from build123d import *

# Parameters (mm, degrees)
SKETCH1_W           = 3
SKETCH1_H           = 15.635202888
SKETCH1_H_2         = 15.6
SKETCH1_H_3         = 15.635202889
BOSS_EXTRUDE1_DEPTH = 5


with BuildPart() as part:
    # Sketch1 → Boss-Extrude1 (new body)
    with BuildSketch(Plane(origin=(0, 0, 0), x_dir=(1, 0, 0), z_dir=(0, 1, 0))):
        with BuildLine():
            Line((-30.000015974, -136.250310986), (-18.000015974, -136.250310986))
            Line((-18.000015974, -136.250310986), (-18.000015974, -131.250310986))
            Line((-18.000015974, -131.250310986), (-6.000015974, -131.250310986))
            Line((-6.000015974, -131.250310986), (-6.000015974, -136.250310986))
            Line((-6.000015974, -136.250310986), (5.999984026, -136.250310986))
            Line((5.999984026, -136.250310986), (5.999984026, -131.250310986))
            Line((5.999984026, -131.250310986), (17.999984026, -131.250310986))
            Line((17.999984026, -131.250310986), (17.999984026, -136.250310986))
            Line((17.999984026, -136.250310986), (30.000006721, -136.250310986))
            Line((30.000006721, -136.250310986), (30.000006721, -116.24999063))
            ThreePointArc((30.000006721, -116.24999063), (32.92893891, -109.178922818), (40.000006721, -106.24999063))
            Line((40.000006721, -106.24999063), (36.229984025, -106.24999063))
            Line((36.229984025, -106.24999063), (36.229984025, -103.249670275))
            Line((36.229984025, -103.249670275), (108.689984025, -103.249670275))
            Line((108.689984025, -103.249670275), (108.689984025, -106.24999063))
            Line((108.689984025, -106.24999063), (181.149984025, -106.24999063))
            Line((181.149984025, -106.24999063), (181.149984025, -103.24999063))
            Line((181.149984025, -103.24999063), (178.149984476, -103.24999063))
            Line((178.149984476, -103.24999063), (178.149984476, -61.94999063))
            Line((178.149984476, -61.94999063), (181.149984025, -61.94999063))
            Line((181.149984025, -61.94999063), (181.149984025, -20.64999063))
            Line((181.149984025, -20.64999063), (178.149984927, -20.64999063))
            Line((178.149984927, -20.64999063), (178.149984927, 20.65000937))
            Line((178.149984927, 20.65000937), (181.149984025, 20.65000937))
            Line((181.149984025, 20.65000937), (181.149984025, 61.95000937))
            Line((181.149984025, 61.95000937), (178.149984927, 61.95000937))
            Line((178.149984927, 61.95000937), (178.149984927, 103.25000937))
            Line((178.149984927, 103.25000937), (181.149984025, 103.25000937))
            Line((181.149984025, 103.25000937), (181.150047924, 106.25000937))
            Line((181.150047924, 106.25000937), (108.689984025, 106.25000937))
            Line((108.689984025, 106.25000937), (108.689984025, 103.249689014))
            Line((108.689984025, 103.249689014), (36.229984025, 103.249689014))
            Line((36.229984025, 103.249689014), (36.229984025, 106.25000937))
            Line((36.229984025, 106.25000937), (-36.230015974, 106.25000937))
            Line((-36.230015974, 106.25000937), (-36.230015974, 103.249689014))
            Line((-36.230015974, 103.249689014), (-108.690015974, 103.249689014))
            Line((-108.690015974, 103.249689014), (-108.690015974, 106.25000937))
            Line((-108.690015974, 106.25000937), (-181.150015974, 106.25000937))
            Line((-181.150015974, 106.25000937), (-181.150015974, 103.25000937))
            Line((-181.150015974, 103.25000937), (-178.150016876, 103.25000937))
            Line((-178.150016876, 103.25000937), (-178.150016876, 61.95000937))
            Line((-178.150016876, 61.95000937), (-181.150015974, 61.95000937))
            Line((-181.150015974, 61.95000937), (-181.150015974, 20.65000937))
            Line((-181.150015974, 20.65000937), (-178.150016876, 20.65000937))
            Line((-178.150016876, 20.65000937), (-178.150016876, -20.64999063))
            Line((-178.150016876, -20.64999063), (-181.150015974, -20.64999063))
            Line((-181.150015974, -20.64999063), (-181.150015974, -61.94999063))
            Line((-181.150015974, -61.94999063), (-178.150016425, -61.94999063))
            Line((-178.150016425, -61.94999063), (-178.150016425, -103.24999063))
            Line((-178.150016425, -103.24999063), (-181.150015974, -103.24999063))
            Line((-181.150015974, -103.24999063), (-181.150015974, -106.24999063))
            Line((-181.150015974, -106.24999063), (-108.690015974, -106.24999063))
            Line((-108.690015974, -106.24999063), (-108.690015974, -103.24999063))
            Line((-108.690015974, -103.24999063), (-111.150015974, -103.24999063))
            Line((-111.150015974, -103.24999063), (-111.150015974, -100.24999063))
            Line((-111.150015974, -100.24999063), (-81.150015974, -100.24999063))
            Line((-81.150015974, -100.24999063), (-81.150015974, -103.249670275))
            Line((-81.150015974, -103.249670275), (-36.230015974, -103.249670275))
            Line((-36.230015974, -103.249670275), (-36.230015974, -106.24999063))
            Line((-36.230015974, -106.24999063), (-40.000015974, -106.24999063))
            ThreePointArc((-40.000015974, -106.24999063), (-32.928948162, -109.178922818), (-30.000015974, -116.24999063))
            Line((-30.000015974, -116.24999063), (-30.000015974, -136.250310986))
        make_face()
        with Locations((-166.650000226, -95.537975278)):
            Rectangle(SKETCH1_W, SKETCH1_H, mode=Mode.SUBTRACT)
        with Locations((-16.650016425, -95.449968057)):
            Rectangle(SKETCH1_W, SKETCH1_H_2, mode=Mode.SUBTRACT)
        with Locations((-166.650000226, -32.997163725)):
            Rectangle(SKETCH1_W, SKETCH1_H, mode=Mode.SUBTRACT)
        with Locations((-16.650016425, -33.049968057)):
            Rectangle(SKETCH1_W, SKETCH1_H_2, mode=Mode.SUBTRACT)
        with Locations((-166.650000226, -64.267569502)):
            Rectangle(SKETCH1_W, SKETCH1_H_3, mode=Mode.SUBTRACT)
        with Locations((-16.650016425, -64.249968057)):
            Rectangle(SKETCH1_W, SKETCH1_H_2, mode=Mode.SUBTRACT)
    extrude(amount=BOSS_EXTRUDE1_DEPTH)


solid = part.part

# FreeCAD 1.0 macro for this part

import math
import FreeCAD as App
import Part
import Sketcher
Q = App.Units.Quantity


def add_polygon(sketch, points):
    """Adds a closed chain of lines whose ends are joined by coincident constraints."""
    first, n = sketch.GeometryCount, len(points)
    for a, b in zip(points, points[1:] + points[:1]):
        sketch.addGeometry(Part.LineSegment(App.Vector(*a, 0), App.Vector(*b, 0)), False)
    for i in range(n):
        sketch.addConstraint(Sketcher.Constraint("Coincident", first + i, 2, first + (i + 1) % n, 1))

doc = App.newDocument("Part")
body = doc.addObject("PartDesign::Body", "Body")

sketch1 = doc.addObject("Sketcher::SketchObject", "Sketch")
body.addObject(sketch1)
sketch1.AttachmentSupport = (doc.XZ_Plane, [""])
sketch1.MapMode = "FlatFace"
sketch1.addGeometry(Part.LineSegment(App.Vector(-30, 136.3, 0), App.Vector(-18, 136.3, 0)), False)
sketch1.addGeometry(Part.LineSegment(App.Vector(-18, 136.3, 0), App.Vector(-18, 131.3, 0)), False)
sketch1.addGeometry(Part.LineSegment(App.Vector(-18, 131.3, 0), App.Vector(-6, 131.3, 0)), False)
sketch1.addGeometry(Part.LineSegment(App.Vector(-6, 131.3, 0), App.Vector(-6, 136.3, 0)), False)
sketch1.addGeometry(Part.LineSegment(App.Vector(-6, 136.3, 0), App.Vector(6, 136.3, 0)), False)
sketch1.addGeometry(Part.LineSegment(App.Vector(6, 136.3, 0), App.Vector(6, 131.3, 0)), False)
sketch1.addGeometry(Part.LineSegment(App.Vector(6, 131.3, 0), App.Vector(18, 131.3, 0)), False)
sketch1.addGeometry(Part.LineSegment(App.Vector(18, 131.3, 0), App.Vector(18, 136.3, 0)), False)
sketch1.addGeometry(Part.LineSegment(App.Vector(18, 136.3, 0), App.Vector(30, 136.3, 0)), False)
sketch1.addGeometry(Part.LineSegment(App.Vector(30, 136.3, 0), App.Vector(30, 116.2, 0)), False)
sketch1.addGeometry(Part.ArcOfCircle(Part.Circle(App.Vector(40, 116.2, 0), App.Vector(0, 0, 1), 10), math.radians(-180), math.radians(-90)), False)
sketch1.addGeometry(Part.LineSegment(App.Vector(40, 106.2, 0), App.Vector(36.2, 106.2, 0)), False)
sketch1.addGeometry(Part.LineSegment(App.Vector(36.2, 106.2, 0), App.Vector(36.2, 103.2, 0)), False)
sketch1.addGeometry(Part.LineSegment(App.Vector(36.2, 103.2, 0), App.Vector(108.7, 103.2, 0)), False)
sketch1.addGeometry(Part.LineSegment(App.Vector(108.7, 103.2, 0), App.Vector(108.7, 106.2, 0)), False)
sketch1.addGeometry(Part.LineSegment(App.Vector(108.7, 106.2, 0), App.Vector(181.1, 106.2, 0)), False)
sketch1.addGeometry(Part.LineSegment(App.Vector(181.1, 106.2, 0), App.Vector(181.1, 103.2, 0)), False)
sketch1.addGeometry(Part.LineSegment(App.Vector(181.1, 103.2, 0), App.Vector(178.1, 103.2, 0)), False)
sketch1.addGeometry(Part.LineSegment(App.Vector(178.1, 103.2, 0), App.Vector(178.1, 61.9, 0)), False)
sketch1.addGeometry(Part.LineSegment(App.Vector(178.1, 61.9, 0), App.Vector(181.1, 61.9, 0)), False)
sketch1.addGeometry(Part.LineSegment(App.Vector(181.1, 61.9, 0), App.Vector(181.1, 20.6, 0)), False)
sketch1.addGeometry(Part.LineSegment(App.Vector(181.1, 20.6, 0), App.Vector(178.1, 20.6, 0)), False)
sketch1.addGeometry(Part.LineSegment(App.Vector(178.1, 20.6, 0), App.Vector(178.1, -20.7, 0)), False)
sketch1.addGeometry(Part.LineSegment(App.Vector(178.1, -20.7, 0), App.Vector(181.1, -20.7, 0)), False)
sketch1.addGeometry(Part.LineSegment(App.Vector(181.1, -20.7, 0), App.Vector(181.1, -62, 0)), False)
sketch1.addGeometry(Part.LineSegment(App.Vector(181.1, -62, 0), App.Vector(178.1, -62, 0)), False)
sketch1.addGeometry(Part.LineSegment(App.Vector(178.1, -62, 0), App.Vector(178.1, -103.3, 0)), False)
sketch1.addGeometry(Part.LineSegment(App.Vector(178.1, -103.3, 0), App.Vector(181.1, -103.3, 0)), False)
sketch1.addGeometry(Part.LineSegment(App.Vector(181.1, -103.3, 0), App.Vector(181.2, -106.3, 0)), False)
sketch1.addGeometry(Part.LineSegment(App.Vector(181.2, -106.3, 0), App.Vector(108.7, -106.3, 0)), False)
sketch1.addGeometry(Part.LineSegment(App.Vector(108.7, -106.3, 0), App.Vector(108.7, -103.2, 0)), False)
sketch1.addGeometry(Part.LineSegment(App.Vector(108.7, -103.2, 0), App.Vector(36.2, -103.2, 0)), False)
sketch1.addGeometry(Part.LineSegment(App.Vector(36.2, -103.2, 0), App.Vector(36.2, -106.3, 0)), False)
sketch1.addGeometry(Part.LineSegment(App.Vector(36.2, -106.3, 0), App.Vector(-36.2, -106.3, 0)), False)
sketch1.addGeometry(Part.LineSegment(App.Vector(-36.2, -106.3, 0), App.Vector(-36.2, -103.2, 0)), False)
sketch1.addGeometry(Part.LineSegment(App.Vector(-36.2, -103.2, 0), App.Vector(-108.7, -103.2, 0)), False)
sketch1.addGeometry(Part.LineSegment(App.Vector(-108.7, -103.2, 0), App.Vector(-108.7, -106.3, 0)), False)
sketch1.addGeometry(Part.LineSegment(App.Vector(-108.7, -106.3, 0), App.Vector(-181.2, -106.3, 0)), False)
sketch1.addGeometry(Part.LineSegment(App.Vector(-181.2, -106.3, 0), App.Vector(-181.2, -103.3, 0)), False)
sketch1.addGeometry(Part.LineSegment(App.Vector(-181.2, -103.3, 0), App.Vector(-178.2, -103.3, 0)), False)
sketch1.addGeometry(Part.LineSegment(App.Vector(-178.2, -103.3, 0), App.Vector(-178.2, -62, 0)), False)
sketch1.addGeometry(Part.LineSegment(App.Vector(-178.2, -62, 0), App.Vector(-181.2, -62, 0)), False)
sketch1.addGeometry(Part.LineSegment(App.Vector(-181.2, -62, 0), App.Vector(-181.2, -20.7, 0)), False)
sketch1.addGeometry(Part.LineSegment(App.Vector(-181.2, -20.7, 0), App.Vector(-178.2, -20.7, 0)), False)
sketch1.addGeometry(Part.LineSegment(App.Vector(-178.2, -20.7, 0), App.Vector(-178.2, 20.6, 0)), False)
sketch1.addGeometry(Part.LineSegment(App.Vector(-178.2, 20.6, 0), App.Vector(-181.2, 20.6, 0)), False)
sketch1.addGeometry(Part.LineSegment(App.Vector(-181.2, 20.6, 0), App.Vector(-181.2, 61.9, 0)), False)
sketch1.addGeometry(Part.LineSegment(App.Vector(-181.2, 61.9, 0), App.Vector(-178.2, 61.9, 0)), False)
sketch1.addGeometry(Part.LineSegment(App.Vector(-178.2, 61.9, 0), App.Vector(-178.2, 103.2, 0)), False)
sketch1.addGeometry(Part.LineSegment(App.Vector(-178.2, 103.2, 0), App.Vector(-181.2, 103.2, 0)), False)
sketch1.addGeometry(Part.LineSegment(App.Vector(-181.2, 103.2, 0), App.Vector(-181.2, 106.2, 0)), False)
sketch1.addGeometry(Part.LineSegment(App.Vector(-181.2, 106.2, 0), App.Vector(-108.7, 106.2, 0)), False)
sketch1.addGeometry(Part.LineSegment(App.Vector(-108.7, 106.2, 0), App.Vector(-108.7, 103.2, 0)), False)
sketch1.addGeometry(Part.LineSegment(App.Vector(-108.7, 103.2, 0), App.Vector(-111.2, 103.2, 0)), False)
sketch1.addGeometry(Part.LineSegment(App.Vector(-111.2, 103.2, 0), App.Vector(-111.2, 100.2, 0)), False)
sketch1.addGeometry(Part.LineSegment(App.Vector(-111.2, 100.2, 0), App.Vector(-81.2, 100.2, 0)), False)
sketch1.addGeometry(Part.LineSegment(App.Vector(-81.2, 100.2, 0), App.Vector(-81.2, 103.2, 0)), False)
sketch1.addGeometry(Part.LineSegment(App.Vector(-81.2, 103.2, 0), App.Vector(-36.2, 103.2, 0)), False)
sketch1.addGeometry(Part.LineSegment(App.Vector(-36.2, 103.2, 0), App.Vector(-36.2, 106.2, 0)), False)
sketch1.addGeometry(Part.LineSegment(App.Vector(-36.2, 106.2, 0), App.Vector(-40, 106.2, 0)), False)
sketch1.addGeometry(Part.ArcOfCircle(Part.Circle(App.Vector(-40, 116.2, 0), App.Vector(0, 0, 1), 10), math.radians(-90), math.radians(0)), False)
sketch1.addGeometry(Part.LineSegment(App.Vector(-30, 116.2, 0), App.Vector(-30, 136.3, 0)), False)
add_polygon(sketch1, [(-165.2, 103.4), (-168.2, 103.4), (-168.2, 87.7), (-165.2, 87.7)])
add_polygon(sketch1, [(-165.2, 72.1), (-168.2, 72.1), (-168.2, 56.4), (-165.2, 56.4)])
add_polygon(sketch1, [(-15.2, 103.2), (-18.2, 103.2), (-18.2, 87.6), (-15.2, 87.6)])
add_polygon(sketch1, [(-165.2, 40.8), (-168.2, 40.8), (-168.2, 25.2), (-165.2, 25.2)])
add_polygon(sketch1, [(-15.2, 72), (-18.2, 72), (-18.2, 56.4), (-15.2, 56.4)])
add_polygon(sketch1, [(-15.2, 40.8), (-18.2, 40.8), (-18.2, 25.2), (-15.2, 25.2)])
sketch1.addConstraint([
    Sketcher.Constraint("Coincident", 0, 2, 1, 1),
    Sketcher.Constraint("Coincident", 1, 2, 2, 1),
    Sketcher.Constraint("Coincident", 2, 2, 3, 1),
    Sketcher.Constraint("Coincident", 3, 2, 4, 1),
    Sketcher.Constraint("Coincident", 4, 2, 5, 1),
    Sketcher.Constraint("Coincident", 5, 2, 6, 1),
    Sketcher.Constraint("Coincident", 6, 2, 7, 1),
    Sketcher.Constraint("Coincident", 7, 2, 8, 1),
    Sketcher.Constraint("Coincident", 8, 2, 9, 1),
    Sketcher.Constraint("Tangent", 9, 2, 10, 1),
    Sketcher.Constraint("Tangent", 10, 2, 11, 1),
    Sketcher.Constraint("Coincident", 11, 2, 12, 1),
    Sketcher.Constraint("Coincident", 12, 2, 13, 1),
    Sketcher.Constraint("Coincident", 13, 2, 14, 1),
    Sketcher.Constraint("Coincident", 14, 2, 15, 1),
    Sketcher.Constraint("Coincident", 15, 2, 16, 1),
    Sketcher.Constraint("Coincident", 16, 2, 17, 1),
    Sketcher.Constraint("Coincident", 17, 2, 18, 1),
    Sketcher.Constraint("Coincident", 18, 2, 19, 1),
    Sketcher.Constraint("Coincident", 19, 2, 20, 1),
    Sketcher.Constraint("Coincident", 20, 2, 21, 1),
    Sketcher.Constraint("Coincident", 21, 2, 22, 1),
    Sketcher.Constraint("Coincident", 22, 2, 23, 1),
    Sketcher.Constraint("Coincident", 23, 2, 24, 1),
    Sketcher.Constraint("Coincident", 24, 2, 25, 1),
    Sketcher.Constraint("Coincident", 25, 2, 26, 1),
    Sketcher.Constraint("Coincident", 26, 2, 27, 1),
    Sketcher.Constraint("Coincident", 27, 2, 28, 1),
    Sketcher.Constraint("Coincident", 28, 2, 29, 1),
    Sketcher.Constraint("Coincident", 29, 2, 30, 1),
    Sketcher.Constraint("Coincident", 30, 2, 31, 1),
    Sketcher.Constraint("Coincident", 31, 2, 32, 1),
    Sketcher.Constraint("Coincident", 32, 2, 33, 1),
    Sketcher.Constraint("Coincident", 33, 2, 34, 1),
    Sketcher.Constraint("Coincident", 34, 2, 35, 1),
    Sketcher.Constraint("Coincident", 35, 2, 36, 1),
    Sketcher.Constraint("Coincident", 36, 2, 37, 1),
    Sketcher.Constraint("Coincident", 37, 2, 38, 1),
    Sketcher.Constraint("Coincident", 38, 2, 39, 1),
    Sketcher.Constraint("Coincident", 39, 2, 40, 1),
    Sketcher.Constraint("Coincident", 40, 2, 41, 1),
    Sketcher.Constraint("Coincident", 41, 2, 42, 1),
    Sketcher.Constraint("Coincident", 42, 2, 43, 1),
    Sketcher.Constraint("Coincident", 43, 2, 44, 1),
    Sketcher.Constraint("Coincident", 44, 2, 45, 1),
    Sketcher.Constraint("Coincident", 45, 2, 46, 1),
    Sketcher.Constraint("Coincident", 46, 2, 47, 1),
    Sketcher.Constraint("Coincident", 47, 2, 48, 1),
    Sketcher.Constraint("Coincident", 48, 2, 49, 1),
    Sketcher.Constraint("Coincident", 49, 2, 50, 1),
    Sketcher.Constraint("Coincident", 50, 2, 51, 1),
    Sketcher.Constraint("Coincident", 51, 2, 52, 1),
    Sketcher.Constraint("Coincident", 52, 2, 53, 1),
    Sketcher.Constraint("Coincident", 53, 2, 54, 1),
    Sketcher.Constraint("Coincident", 54, 2, 55, 1),
    Sketcher.Constraint("Coincident", 55, 2, 56, 1),
    Sketcher.Constraint("Coincident", 56, 2, 57, 1),
    Sketcher.Constraint("Coincident", 57, 2, 58, 1),
    Sketcher.Constraint("Coincident", 58, 2, 59, 1),
    Sketcher.Constraint("Tangent", 59, 2, 60, 1),
    Sketcher.Constraint("Tangent", 60, 2, 61, 1),
    Sketcher.Constraint("Coincident", 61, 2, 0, 1),
    Sketcher.Constraint("Horizontal", 0),
    Sketcher.Constraint("Vertical", 1),
    Sketcher.Constraint("Horizontal", 2),
    Sketcher.Constraint("Vertical", 3),
    Sketcher.Constraint("Horizontal", 4),
    Sketcher.Constraint("Vertical", 5),
    Sketcher.Constraint("Horizontal", 6),
    Sketcher.Constraint("Vertical", 7),
    Sketcher.Constraint("Horizontal", 8),
    Sketcher.Constraint("Vertical", 9),
    Sketcher.Constraint("Horizontal", 11),
    Sketcher.Constraint("Vertical", 12),
    Sketcher.Constraint("Horizontal", 13),
    Sketcher.Constraint("Vertical", 14),
    Sketcher.Constraint("Horizontal", 15),
    Sketcher.Constraint("Vertical", 16),
    Sketcher.Constraint("Horizontal", 17),
    Sketcher.Constraint("Vertical", 18),
    Sketcher.Constraint("Horizontal", 19),
    Sketcher.Constraint("Vertical", 20),
    Sketcher.Constraint("Horizontal", 21),
    Sketcher.Constraint("Vertical", 22),
    Sketcher.Constraint("Horizontal", 23),
    Sketcher.Constraint("Vertical", 24),
    Sketcher.Constraint("Horizontal", 25),
    Sketcher.Constraint("Vertical", 26),
    Sketcher.Constraint("Horizontal", 27),
    Sketcher.Constraint("Horizontal", 29),
    Sketcher.Constraint("Vertical", 30),
    Sketcher.Constraint("Horizontal", 31),
    Sketcher.Constraint("Vertical", 32),
    Sketcher.Constraint("Horizontal", 33),
    Sketcher.Constraint("Vertical", 34),
    Sketcher.Constraint("Horizontal", 35),
    Sketcher.Constraint("Vertical", 36),
    Sketcher.Constraint("Horizontal", 37),
    Sketcher.Constraint("Vertical", 38),
    Sketcher.Constraint("Horizontal", 39),
    Sketcher.Constraint("Vertical", 40),
    Sketcher.Constraint("Horizontal", 41),
    Sketcher.Constraint("Vertical", 42),
    Sketcher.Constraint("Horizontal", 43),
    Sketcher.Constraint("Vertical", 44),
    Sketcher.Constraint("Horizontal", 45),
    Sketcher.Constraint("Vertical", 46),
    Sketcher.Constraint("Horizontal", 47),
    Sketcher.Constraint("Vertical", 48),
    Sketcher.Constraint("Horizontal", 49),
    Sketcher.Constraint("Vertical", 50),
    Sketcher.Constraint("Horizontal", 51),
    Sketcher.Constraint("Vertical", 52),
    Sketcher.Constraint("Horizontal", 53),
    Sketcher.Constraint("Vertical", 54),
    Sketcher.Constraint("Horizontal", 55),
    Sketcher.Constraint("Vertical", 56),
    Sketcher.Constraint("Horizontal", 57),
    Sketcher.Constraint("Vertical", 58),
    Sketcher.Constraint("Horizontal", 59),
    Sketcher.Constraint("Vertical", 61),
    Sketcher.Constraint("Horizontal", 62),
    Sketcher.Constraint("Vertical", 63),
    Sketcher.Constraint("Horizontal", 64),
    Sketcher.Constraint("Vertical", 65),
    Sketcher.Constraint("Horizontal", 66),
    Sketcher.Constraint("Vertical", 67),
    Sketcher.Constraint("Horizontal", 68),
    Sketcher.Constraint("Vertical", 69),
    Sketcher.Constraint("Horizontal", 70),
    Sketcher.Constraint("Vertical", 71),
    Sketcher.Constraint("Horizontal", 72),
    Sketcher.Constraint("Vertical", 73),
    Sketcher.Constraint("Horizontal", 74),
    Sketcher.Constraint("Vertical", 75),
    Sketcher.Constraint("Horizontal", 76),
    Sketcher.Constraint("Vertical", 77),
    Sketcher.Constraint("Horizontal", 78),
    Sketcher.Constraint("Vertical", 79),
    Sketcher.Constraint("Horizontal", 80),
    Sketcher.Constraint("Vertical", 81),
    Sketcher.Constraint("Horizontal", 82),
    Sketcher.Constraint("Vertical", 83),
    Sketcher.Constraint("Horizontal", 84),
    Sketcher.Constraint("Vertical", 85),
    Sketcher.Constraint("Equal", 10, 60),
    Sketcher.Constraint("Symmetric", 10, 3, 60, 3, -2),
    Sketcher.Constraint("Horizontal", 0, 2, 3, 2),
    Sketcher.Constraint("Horizontal", 2, 2, 5, 2),
    Sketcher.Constraint("Horizontal", 4, 2, 7, 2),
    Sketcher.Constraint("Horizontal", 11, 2, 14, 2),
    Sketcher.Constraint("Horizontal", 29, 2, 32, 2),
    Sketcher.Constraint("Horizontal", 31, 2, 34, 2),
    Sketcher.Constraint("Horizontal", 33, 2, 36, 2),
    Sketcher.Constraint("Horizontal", 27, 2, 38, 2),
    Sketcher.Constraint("Horizontal", 25, 2, 40, 2),
    Sketcher.Constraint("Horizontal", 23, 2, 42, 2),
    Sketcher.Constraint("Horizontal", 21, 2, 44, 2),
    Sketcher.Constraint("Horizontal", 19, 2, 46, 2),
    Sketcher.Constraint("Horizontal", 17, 2, 48, 2),
    Sketcher.Constraint("Horizontal", 15, 2, 50, 2),
    Sketcher.Constraint("Horizontal", 49, 2, 52, 2),
    Sketcher.Constraint("Horizontal", 13, 2, 56, 2),
    Sketcher.Constraint("Horizontal", 68, 2, 79, 2),
    Sketcher.Constraint("Vertical", 16, 2, 19, 2),
    Sketcher.Constraint("Vertical", 18, 2, 21, 2),
    Sketcher.Constraint("Vertical", 20, 2, 23, 2),
    Sketcher.Constraint("Vertical", 22, 2, 25, 2),
    Sketcher.Constraint("Vertical", 24, 2, 27, 2),
    Sketcher.Constraint("Vertical", 14, 2, 29, 2),
    Sketcher.Constraint("Vertical", 12, 2, 31, 2),
    Sketcher.Constraint("Vertical", 38, 2, 41, 2),
    Sketcher.Constraint("Vertical", 40, 2, 43, 2),
    Sketcher.Constraint("Vertical", 42, 2, 45, 2),
    Sketcher.Constraint("Vertical", 44, 2, 47, 2),
    Sketcher.Constraint("Vertical", 46, 2, 49, 2),
    Sketcher.Constraint("Vertical", 36, 2, 51, 2),
    Sketcher.Constraint("Vertical", 34, 2, 57, 2),
    Sketcher.Constraint("Vertical", 63, 2, 66, 2),
    Sketcher.Constraint("Vertical", 65, 2, 68, 2),
    Sketcher.Constraint("Vertical", 67, 2, 74, 2),
    Sketcher.Constraint("Vertical", 69, 2, 76, 2),
    Sketcher.Constraint("Vertical", 71, 2, 78, 2),
    Sketcher.Constraint("Vertical", 73, 2, 80, 2),
    Sketcher.Constraint("Vertical", 79, 2, 82, 2),
    Sketcher.Constraint("Vertical", 81, 2, 84, 2),
    Sketcher.Constraint("Equal", 0, 2),
    Sketcher.Constraint("Equal", 2, 4),
    Sketcher.Constraint("Equal", 4, 6),
    Sketcher.Constraint("Equal", 13, 15),
    Sketcher.Constraint("Equal", 31, 33),
    Sketcher.Constraint("Equal", 33, 35),
    Sketcher.Constraint("Equal", 35, 37),
    Sketcher.Constraint("Equal", 27, 39),
    Sketcher.Constraint("Equal", 49, 62),
    Sketcher.Constraint("Equal", 68, 70),
    Sketcher.Constraint("Equal", 84, 16),
    Sketcher.Constraint("Equal", 18, 20),
    Sketcher.Constraint("Equal", 20, 22),
    Sketcher.Constraint("Equal", 22, 24),
    Sketcher.Constraint("Equal", 24, 26),
    Sketcher.Constraint("Equal", 14, 30),
    Sketcher.Constraint("Equal", 16, 38),
    Sketcher.Constraint("Equal", 52, 54),
    Sketcher.Constraint("Equal", 65, 67),
    Sketcher.Constraint("Equal", 69, 75),
    Sketcher.Constraint("Equal", 73, 79),
    Sketcher.Constraint("Equal", 81, 83),
    Sketcher.Constraint("Radius", 10, Q("10 mm")),
    Sketcher.Constraint("DistanceX", 0, 1, 0, 2, Q("12 mm")),
    Sketcher.Constraint("DistanceX", 17, 2, 17, 1, Q("3 mm")),
    Sketcher.Constraint("DistanceX", 55, 1, 55, 2, Q("30 mm")),
    Sketcher.Constraint("DistanceY", 1, 2, 1, 1, Q("5 mm")),
    Sketcher.Constraint("DistanceY", 18, 2, 18, 1, Q("41.3 mm")),
    Sketcher.Constraint("DistanceY", 71, 2, 71, 1, Q("15.6 mm")),
    Sketcher.Constraint("DistanceX", 13, 1, 13, 2, Q("72.46 mm")),
    Sketcher.Constraint("DistanceX", 53, 2, 53, 1, Q("2.46 mm")),
    Sketcher.Constraint("DistanceX", 59, 2, 59, 1, Q("3.77 mm")),
    Sketcher.Constraint("DistanceX", 62, 2, -1, 1, Q("168.15 mm")),
    Sketcher.Constraint("DistanceY", 9, 2, 9, 1, Q("20.00032 mm")),
    Sketcher.Constraint("DistanceY", 12, 2, 12, 1, Q("3.00032 mm")),
    Sketcher.Constraint("DistanceX", 8, 1, 8, 2, Q("12.000023 mm")),
    Sketcher.Constraint("DistanceX", 29, 2, 29, 1, Q("72.460064 mm")),
    Sketcher.Constraint("DistanceY", 63, 2, 63, 1, Q("15.635203 mm")),
    Sketcher.Constraint("DistanceY", -1, 1, 10, 3, Q("116.249991 mm")),
    Sketcher.Constraint("DistanceY", -1, 1, 66, 2, Q("72.085171 mm")),
    Sketcher.Constraint("DistanceY", -1, 1, 70, 2, Q("103.249968 mm")),
    Sketcher.Constraint("DistanceY", -1, 1, 82, 2, Q("40.849968 mm")),
    Sketcher.Constraint("DistanceY", -1, 1, 62, 2, Q("103.355577 mm")),
    Sketcher.Constraint("DistanceX", 70, 2, -1, 1, Q("18.150016 mm")),
    Sketcher.Constraint("DistanceY", -1, 1, 74, 2, Q("40.814765 mm")),
])
pad1 = doc.addObject("PartDesign::Pad", "Pad")
body.addObject(pad1)
pad1.Profile = sketch1
pad1.Length = 5
pad1.Reversed = True

doc.recompute()
